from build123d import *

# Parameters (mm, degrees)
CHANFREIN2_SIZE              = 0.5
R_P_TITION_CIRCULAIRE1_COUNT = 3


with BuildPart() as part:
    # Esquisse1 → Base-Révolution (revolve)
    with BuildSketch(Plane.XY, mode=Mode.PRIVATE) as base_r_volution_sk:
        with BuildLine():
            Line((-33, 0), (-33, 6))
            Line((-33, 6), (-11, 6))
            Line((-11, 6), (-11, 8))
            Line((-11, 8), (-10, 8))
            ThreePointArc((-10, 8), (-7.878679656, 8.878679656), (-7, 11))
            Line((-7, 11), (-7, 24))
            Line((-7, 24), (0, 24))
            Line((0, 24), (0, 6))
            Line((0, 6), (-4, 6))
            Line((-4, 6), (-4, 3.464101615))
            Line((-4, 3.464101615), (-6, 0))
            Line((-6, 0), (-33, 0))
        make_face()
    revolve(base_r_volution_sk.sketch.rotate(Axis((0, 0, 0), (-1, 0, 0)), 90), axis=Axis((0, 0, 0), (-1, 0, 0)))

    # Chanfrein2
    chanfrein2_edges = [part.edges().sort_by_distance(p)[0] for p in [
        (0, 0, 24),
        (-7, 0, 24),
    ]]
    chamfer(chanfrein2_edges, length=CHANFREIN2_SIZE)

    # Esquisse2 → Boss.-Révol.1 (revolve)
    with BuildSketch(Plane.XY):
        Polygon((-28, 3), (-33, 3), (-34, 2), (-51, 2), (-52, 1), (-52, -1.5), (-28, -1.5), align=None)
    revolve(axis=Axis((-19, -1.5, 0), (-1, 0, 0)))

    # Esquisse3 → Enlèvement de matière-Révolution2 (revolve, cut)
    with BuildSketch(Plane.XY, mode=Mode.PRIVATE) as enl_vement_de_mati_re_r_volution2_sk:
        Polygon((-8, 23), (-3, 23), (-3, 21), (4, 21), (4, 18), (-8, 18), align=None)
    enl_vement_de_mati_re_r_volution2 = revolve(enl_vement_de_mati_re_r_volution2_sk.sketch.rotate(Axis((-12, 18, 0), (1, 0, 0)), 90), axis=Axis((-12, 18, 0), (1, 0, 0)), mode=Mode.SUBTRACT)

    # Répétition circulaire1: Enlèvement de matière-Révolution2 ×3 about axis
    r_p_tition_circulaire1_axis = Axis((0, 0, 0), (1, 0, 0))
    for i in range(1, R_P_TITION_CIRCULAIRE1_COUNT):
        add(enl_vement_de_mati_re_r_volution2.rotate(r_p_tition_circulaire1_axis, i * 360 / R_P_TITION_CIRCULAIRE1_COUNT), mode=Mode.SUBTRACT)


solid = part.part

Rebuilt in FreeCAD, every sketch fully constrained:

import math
import FreeCAD as App
import Part
import Sketcher

V = App.Vector
Q = App.Units.Quantity


def edges_at(feature, points):
    """Names of the edges that pass closest to the given points."""
    edges = feature.Shape.Edges
    near = lambda p: min(range(len(edges)), key=lambda i: edges[i].distToShape(Part.Vertex(*p))[0])
    return sorted({f"Edge{near(p) + 1}" for p in points})

doc = App.newDocument("Part")
body = doc.addObject("PartDesign::Body", "Body")

# Sketch on XY plane
sketch1 = body.newObject("Sketcher::SketchObject", "Sketch")
sketch1.AttachmentSupport = (doc.getObject("XY_Plane"), [""])
sketch1.MapMode = "FlatFace"
sketch1.addGeometry([
    Part.LineSegment(V(-33, 6, 0), V(-33, 0, 0)),  # 0
    Part.LineSegment(V(-33, 0, 0), V(-6, 0, 0)),  # 1
    Part.LineSegment(V(-6, 0, 0), V(-4, 3.5, 0)),  # 2
    Part.LineSegment(V(-4, 3.5, 0), V(-4, 6, 0)),  # 3
    Part.LineSegment(V(-4, 6, 0), V(0, 6, 0)),  # 4
    Part.LineSegment(V(0, 6, 0), V(0, 24, 0)),  # 5
    Part.LineSegment(V(0, 24, 0), V(-7, 24, 0)),  # 6
    Part.LineSegment(V(-7, 24, 0), V(-7, 11, 0)),  # 7
    Part.ArcOfCircle(Part.Circle(V(-10, 11, 0), V(0, 0, 1), 3), math.radians(-90), math.radians(0)),  # 8
    Part.LineSegment(V(-10, 8, 0), V(-11, 8, 0)),  # 9
    Part.LineSegment(V(-11, 8, 0), V(-11, 6, 0)),  # 10
    Part.LineSegment(V(-11, 6, 0), V(-33, 6, 0)),  # 11
], False)
sketch1.addConstraint([
    Sketcher.Constraint("Coincident", 0, 2, 1, 1),
    Sketcher.Constraint("Coincident", 1, 2, 2, 1),
    Sketcher.Constraint("Coincident", 2, 2, 3, 1),
    Sketcher.Constraint("Coincident", 3, 2, 4, 1),
    Sketcher.Constraint("Coincident", 4, 2, 5, 1),
    Sketcher.Constraint("Coincident", 5, 2, 6, 1),
    Sketcher.Constraint("Coincident", 6, 2, 7, 1),
    Sketcher.Constraint("Tangent", 7, 2, 8, 2),
    Sketcher.Constraint("Tangent", 8, 1, 9, 1),
    Sketcher.Constraint("Coincident", 9, 2, 10, 1),
    Sketcher.Constraint("Coincident", 10, 2, 11, 1),
    Sketcher.Constraint("Coincident", 11, 2, 0, 1),
    Sketcher.Constraint("Vertical", 0),
    Sketcher.Constraint("Horizontal", 1),
    Sketcher.Constraint("Vertical", 3),
    Sketcher.Constraint("Horizontal", 4),
    Sketcher.Constraint("Vertical", 5),
    Sketcher.Constraint("Horizontal", 6),
    Sketcher.Constraint("Vertical", 7),
    Sketcher.Constraint("Horizontal", 9),
    Sketcher.Constraint("Vertical", 10),
    Sketcher.Constraint("Horizontal", 11),
    Sketcher.Constraint("PointOnObject", 0, 2, -1),
    Sketcher.Constraint("PointOnObject", 4, 2, -2),
    Sketcher.Constraint("Horizontal", 4, 2, 10, 2),
    Sketcher.Constraint("Radius", 8, 3.0),
    Sketcher.Constraint("DistanceX", 1, 1, 1, 2, 27.0),
    Sketcher.Constraint("DistanceX", 4, 1, 4, 2, 4.0),
    Sketcher.Constraint("DistanceX", 6, 2, 6, 1, 7.0),
    Sketcher.Constraint("DistanceX", 9, 2, 9, 1, 1.0),
    Sketcher.Constraint("DistanceX", 11, 2, 11, 1, 22.0),
    Sketcher.Constraint("DistanceY", 0, 2, 0, 1, 6.0),
    Sketcher.Constraint("DistanceY", 5, 1, 5, 2, 18.0),
    Sketcher.Constraint("DistanceY", 7, 2, 7, 1, 13.0),
    Sketcher.Constraint("Angle", 2, Q("60 deg")),
])
revolution = body.newObject("PartDesign::Revolution", "Revolution")
revolution.Profile = sketch1
revolution.ReferenceAxis = (sketch1, ["H_Axis"])
revolution.Angle = 360
doc.recompute()

chamfer = body.newObject("PartDesign::Chamfer", "Chamfer")
chamfer.Base = (revolution, edges_at(revolution, [(0, 0, 24), (-7, 0, 24)]))
chamfer.Size = 0.5

# Sketch on XY plane
sketch2 = body.newObject("Sketcher::SketchObject", "Sketch001")
sketch2.AttachmentSupport = (doc.getObject("XY_Plane"), [""])
sketch2.MapMode = "FlatFace"
sketch2.addGeometry([
    Part.LineSegment(V(-28, 3, 0), V(-33, 3, 0)),  # 0
    Part.LineSegment(V(-33, 3, 0), V(-34, 2, 0)),  # 1
    Part.LineSegment(V(-34, 2, 0), V(-51, 2, 0)),  # 2
    Part.LineSegment(V(-51, 2, 0), V(-52, 1, 0)),  # 3
    Part.LineSegment(V(-52, 1, 0), V(-52, -1.5, 0)),  # 4
    Part.LineSegment(V(-52, -1.5, 0), V(-28, -1.5, 0)),  # 5
    Part.LineSegment(V(-28, -1.5, 0), V(-28, 3, 0)),  # 6
], False)
sketch2.addGeometry(Part.LineSegment(V(-28, -1.5, 0), V(-52, -1.5, 0)), True)  # axis
sketch2.addConstraint([
    Sketcher.Constraint("Coincident", 0, 2, 1, 1),
    Sketcher.Constraint("Coincident", 1, 2, 2, 1),
    Sketcher.Constraint("Coincident", 2, 2, 3, 1),
    Sketcher.Constraint("Coincident", 3, 2, 4, 1),
    Sketcher.Constraint("Coincident", 4, 2, 5, 1),
    Sketcher.Constraint("Coincident", 5, 2, 6, 1),
    Sketcher.Constraint("Coincident", 6, 2, 0, 1),
    Sketcher.Constraint("Horizontal", 0),
    Sketcher.Constraint("Horizontal", 2),
    Sketcher.Constraint("Vertical", 4),
    Sketcher.Constraint("Horizontal", 5),
    Sketcher.Constraint("Vertical", 6),
    Sketcher.Constraint("Horizontal", 7),
    Sketcher.Constraint("Coincident", 7, 1, 5, 2),
    Sketcher.Constraint("Parallel", 1, 3),
    Sketcher.Constraint("Vertical", 3, 2, 7, 2),
    Sketcher.Constraint("Equal", 1, 3),
    Sketcher.Constraint("DistanceX", 0, 2, 0, 1, 5.0),
    Sketcher.Constraint("DistanceX", 2, 2, 2, 1, 17.0),
    Sketcher.Constraint("DistanceX", 5, 1, 5, 2, 24.0),
    Sketcher.Constraint("Angle", 1, Q("-135 deg")),
    Sketcher.Constraint("DistanceY", 4, 2, 4, 1, 2.5),
    Sketcher.Constraint("DistanceX", 0, 2, -1, 1, 33.0),
    Sketcher.Constraint("DistanceY", -1, 1, 0, 2, 3.0),
])
revolution2 = body.newObject("PartDesign::Revolution", "Revolution001")
revolution2.Profile = sketch2
revolution2.ReferenceAxis = (sketch2, ["Axis0"])
revolution2.Angle = 360

# Sketch on XY plane
sketch3 = body.newObject("Sketcher::SketchObject", "Sketch002")
sketch3.AttachmentSupport = (doc.getObject("XY_Plane"), [""])
sketch3.MapMode = "FlatFace"
sketch3.addGeometry([
    Part.LineSegment(V(-3, 23, 0), V(-8, 23, 0)),  # 0
    Part.LineSegment(V(-8, 23, 0), V(-8, 18, 0)),  # 1
    Part.LineSegment(V(-8, 18, 0), V(4, 18, 0)),  # 2
    Part.LineSegment(V(4, 18, 0), V(4, 21, 0)),  # 3
    Part.LineSegment(V(4, 21, 0), V(-3, 21, 0)),  # 4
    Part.LineSegment(V(-3, 21, 0), V(-3, 23, 0)),  # 5
], False)
sketch3.addGeometry(Part.LineSegment(V(-8, 18, 0), V(4, 18, 0)), True)  # axis
sketch3.addConstraint([
    Sketcher.Constraint("Coincident", 0, 2, 1, 1),
    Sketcher.Constraint("Coincident", 1, 2, 2, 1),
    Sketcher.Constraint("Coincident", 2, 2, 3, 1),
    Sketcher.Constraint("Coincident", 3, 2, 4, 1),
    Sketcher.Constraint("Coincident", 4, 2, 5, 1),
    Sketcher.Constraint("Coincident", 5, 2, 0, 1),
    Sketcher.Constraint("Horizontal", 0),
    Sketcher.Constraint("Vertical", 1),
    Sketcher.Constraint("Horizontal", 2),
    Sketcher.Constraint("Vertical", 3),
    Sketcher.Constraint("Horizontal", 4),
    Sketcher.Constraint("Vertical", 5),
    Sketcher.Constraint("Horizontal", 6),
    Sketcher.Constraint("Coincident", 6, 1, 1, 2),
    Sketcher.Constraint("Vertical", 3, 2, 6, 2),
    Sketcher.Constraint("Equal", 0, 1),
    Sketcher.Constraint("DistanceX", 0, 2, 0, 1, 5.0),
    Sketcher.Constraint("DistanceX", 2, 1, 2, 2, 12.0),
    Sketcher.Constraint("DistanceY", 3, 1, 3, 2, 3.0),
    Sketcher.Constraint("DistanceX", 0, 2, -1, 1, 8.0),
    Sketcher.Constraint("DistanceY", -1, 1, 0, 2, 23.0),
])
groove = body.newObject("PartDesign::Groove", "Groove")
groove.Profile = sketch3
groove.ReferenceAxis = (sketch3, ["Axis0"])
groove.Angle = 360
doc.recompute()

polarpattern = body.newObject("PartDesign::PolarPattern", "PolarPattern")
polarpattern.Originals = [groove]
polarpattern.Axis = (doc.getObject("X_Axis"), [""])
polarpattern.Angle = 360
polarpattern.Occurrences = 3
body.Tip = polarpattern

doc.recompute()
